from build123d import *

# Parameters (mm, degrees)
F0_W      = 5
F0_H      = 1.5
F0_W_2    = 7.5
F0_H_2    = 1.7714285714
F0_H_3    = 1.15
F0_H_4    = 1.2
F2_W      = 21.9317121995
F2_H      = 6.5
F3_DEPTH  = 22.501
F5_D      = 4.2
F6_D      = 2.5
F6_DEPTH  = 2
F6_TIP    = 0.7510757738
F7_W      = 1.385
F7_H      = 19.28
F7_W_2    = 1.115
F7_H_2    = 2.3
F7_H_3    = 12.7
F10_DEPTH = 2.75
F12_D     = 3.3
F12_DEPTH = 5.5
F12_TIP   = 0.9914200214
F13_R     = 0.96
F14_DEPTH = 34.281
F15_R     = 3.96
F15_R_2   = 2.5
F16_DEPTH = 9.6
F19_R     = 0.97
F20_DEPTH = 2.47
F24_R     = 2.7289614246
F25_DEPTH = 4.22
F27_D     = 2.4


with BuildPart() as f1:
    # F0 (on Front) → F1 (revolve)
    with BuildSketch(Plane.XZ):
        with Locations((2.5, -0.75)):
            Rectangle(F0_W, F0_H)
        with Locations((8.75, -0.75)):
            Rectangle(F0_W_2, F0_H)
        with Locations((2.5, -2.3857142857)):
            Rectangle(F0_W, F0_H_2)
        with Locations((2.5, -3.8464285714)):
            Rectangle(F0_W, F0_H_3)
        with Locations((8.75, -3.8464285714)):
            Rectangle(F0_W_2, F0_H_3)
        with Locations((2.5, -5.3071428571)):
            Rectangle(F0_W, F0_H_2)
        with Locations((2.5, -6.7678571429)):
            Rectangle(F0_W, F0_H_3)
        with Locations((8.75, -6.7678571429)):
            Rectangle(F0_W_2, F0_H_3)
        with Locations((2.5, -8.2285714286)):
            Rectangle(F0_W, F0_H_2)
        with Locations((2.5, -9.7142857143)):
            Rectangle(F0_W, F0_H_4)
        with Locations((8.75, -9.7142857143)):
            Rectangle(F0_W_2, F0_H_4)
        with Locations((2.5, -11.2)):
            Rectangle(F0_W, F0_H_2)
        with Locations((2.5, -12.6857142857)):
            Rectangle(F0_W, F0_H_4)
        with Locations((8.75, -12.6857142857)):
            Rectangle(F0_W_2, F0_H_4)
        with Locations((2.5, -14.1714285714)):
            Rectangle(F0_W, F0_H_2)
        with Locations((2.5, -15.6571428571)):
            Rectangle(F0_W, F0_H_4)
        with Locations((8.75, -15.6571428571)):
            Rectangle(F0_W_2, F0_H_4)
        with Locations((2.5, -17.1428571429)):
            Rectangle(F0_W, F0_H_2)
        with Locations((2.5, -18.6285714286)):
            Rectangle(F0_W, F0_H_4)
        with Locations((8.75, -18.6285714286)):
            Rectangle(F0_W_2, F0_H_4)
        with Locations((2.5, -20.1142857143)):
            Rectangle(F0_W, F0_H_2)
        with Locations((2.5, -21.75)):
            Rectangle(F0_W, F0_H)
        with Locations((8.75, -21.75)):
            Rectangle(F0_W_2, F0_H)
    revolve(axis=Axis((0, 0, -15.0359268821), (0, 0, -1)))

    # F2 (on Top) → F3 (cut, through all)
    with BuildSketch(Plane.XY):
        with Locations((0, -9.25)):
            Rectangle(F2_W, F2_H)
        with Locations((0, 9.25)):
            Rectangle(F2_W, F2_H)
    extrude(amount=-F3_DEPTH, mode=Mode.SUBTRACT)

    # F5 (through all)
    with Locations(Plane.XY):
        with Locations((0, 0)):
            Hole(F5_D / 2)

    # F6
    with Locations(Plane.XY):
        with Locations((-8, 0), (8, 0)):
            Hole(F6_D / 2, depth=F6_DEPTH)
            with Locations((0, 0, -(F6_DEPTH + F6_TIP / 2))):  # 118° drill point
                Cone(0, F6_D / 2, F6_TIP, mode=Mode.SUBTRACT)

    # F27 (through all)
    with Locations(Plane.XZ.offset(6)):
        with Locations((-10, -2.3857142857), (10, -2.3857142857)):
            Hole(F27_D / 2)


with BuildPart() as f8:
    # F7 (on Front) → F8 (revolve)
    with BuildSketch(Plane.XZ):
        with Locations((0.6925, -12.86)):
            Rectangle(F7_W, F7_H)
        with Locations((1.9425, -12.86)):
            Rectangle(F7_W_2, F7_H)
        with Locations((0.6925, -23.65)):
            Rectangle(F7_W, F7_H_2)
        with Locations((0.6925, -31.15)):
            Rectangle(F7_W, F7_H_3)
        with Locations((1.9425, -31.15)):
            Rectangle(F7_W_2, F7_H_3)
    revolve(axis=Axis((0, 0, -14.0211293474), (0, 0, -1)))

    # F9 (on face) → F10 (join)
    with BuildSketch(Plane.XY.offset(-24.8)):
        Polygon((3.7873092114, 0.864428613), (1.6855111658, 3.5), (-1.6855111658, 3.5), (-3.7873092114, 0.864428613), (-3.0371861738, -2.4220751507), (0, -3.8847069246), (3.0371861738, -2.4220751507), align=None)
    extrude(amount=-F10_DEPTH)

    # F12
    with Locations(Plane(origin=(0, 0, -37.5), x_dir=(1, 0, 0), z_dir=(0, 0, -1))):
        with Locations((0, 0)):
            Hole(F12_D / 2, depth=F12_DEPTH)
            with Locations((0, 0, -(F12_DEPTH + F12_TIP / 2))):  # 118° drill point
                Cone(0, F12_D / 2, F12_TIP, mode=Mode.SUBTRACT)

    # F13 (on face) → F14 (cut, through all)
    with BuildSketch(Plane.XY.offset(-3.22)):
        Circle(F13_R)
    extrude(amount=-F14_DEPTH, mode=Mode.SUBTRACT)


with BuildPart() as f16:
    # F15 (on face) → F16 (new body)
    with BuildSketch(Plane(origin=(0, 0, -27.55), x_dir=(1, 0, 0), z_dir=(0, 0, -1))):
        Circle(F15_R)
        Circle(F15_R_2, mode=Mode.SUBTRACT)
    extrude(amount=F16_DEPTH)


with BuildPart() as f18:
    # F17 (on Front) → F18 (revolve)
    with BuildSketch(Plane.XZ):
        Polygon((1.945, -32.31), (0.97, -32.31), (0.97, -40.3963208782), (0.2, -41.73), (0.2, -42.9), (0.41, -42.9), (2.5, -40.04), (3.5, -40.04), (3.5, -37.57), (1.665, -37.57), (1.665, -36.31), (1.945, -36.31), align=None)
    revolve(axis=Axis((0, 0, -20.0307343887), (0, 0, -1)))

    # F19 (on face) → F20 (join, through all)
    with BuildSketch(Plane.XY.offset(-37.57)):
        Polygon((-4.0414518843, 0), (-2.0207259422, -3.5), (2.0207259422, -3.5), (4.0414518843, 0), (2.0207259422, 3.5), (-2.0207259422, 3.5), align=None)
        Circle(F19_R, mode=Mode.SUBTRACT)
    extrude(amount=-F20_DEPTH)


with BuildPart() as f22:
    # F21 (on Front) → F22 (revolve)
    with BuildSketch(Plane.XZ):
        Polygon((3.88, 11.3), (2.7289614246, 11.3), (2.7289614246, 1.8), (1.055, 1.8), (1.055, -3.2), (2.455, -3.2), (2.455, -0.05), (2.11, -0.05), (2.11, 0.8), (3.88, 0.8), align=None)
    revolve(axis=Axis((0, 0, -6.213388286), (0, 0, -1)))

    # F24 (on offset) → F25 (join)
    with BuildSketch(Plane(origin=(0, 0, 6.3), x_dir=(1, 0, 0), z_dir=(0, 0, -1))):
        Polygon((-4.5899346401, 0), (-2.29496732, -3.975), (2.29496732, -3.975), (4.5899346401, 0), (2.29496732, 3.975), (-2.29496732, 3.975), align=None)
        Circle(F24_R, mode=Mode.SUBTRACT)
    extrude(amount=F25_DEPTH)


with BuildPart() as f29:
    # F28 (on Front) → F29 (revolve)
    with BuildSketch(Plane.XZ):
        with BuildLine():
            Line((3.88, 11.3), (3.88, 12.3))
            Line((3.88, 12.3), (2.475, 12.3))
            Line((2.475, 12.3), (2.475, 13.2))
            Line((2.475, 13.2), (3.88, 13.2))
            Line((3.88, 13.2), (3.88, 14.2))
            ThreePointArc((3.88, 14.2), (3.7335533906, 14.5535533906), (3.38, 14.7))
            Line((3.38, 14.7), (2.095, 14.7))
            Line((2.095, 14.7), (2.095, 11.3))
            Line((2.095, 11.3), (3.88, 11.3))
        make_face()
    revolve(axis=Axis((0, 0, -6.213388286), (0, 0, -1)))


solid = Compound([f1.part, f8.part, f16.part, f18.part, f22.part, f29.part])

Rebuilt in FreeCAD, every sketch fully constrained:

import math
import FreeCAD as App
import Part
import Sketcher
Q = App.Units.Quantity


def add_polygon(sketch, points):
    """Adds a closed chain of lines whose ends are joined by coincident constraints."""
    first, n = sketch.GeometryCount, len(points)
    for a, b in zip(points, points[1:] + points[:1]):
        sketch.addGeometry(Part.LineSegment(App.Vector(*a, 0), App.Vector(*b, 0)), False)
    for i in range(n):
        sketch.addConstraint(Sketcher.Constraint("Coincident", first + i, 2, first + (i + 1) % n, 1))

doc = App.newDocument("Part")
body = doc.addObject("PartDesign::Body", "Body")

# Sketch on XZ plane
sketch1 = doc.addObject("Sketcher::SketchObject", "Sketch")
body.addObject(sketch1)
sketch1.AttachmentSupport = (doc.XZ_Plane, [""])
sketch1.MapMode = "FlatFace"
add_polygon(sketch1, [(0, 0), (0, -22.5), (12.5, -22.5), (12.5, -21), (5, -21), (5, -19.2), (12.5, -19.2), (12.5, -18), (5, -18), (5, -16.3), (12.5, -16.3), (12.5, -15.1), (5, -15.1), (5, -13.3), (12.5, -13.3), (12.5, -12.1), (5, -12.1), (5, -10.3), (12.5, -10.3), (12.5, -9.1), (5, -9.1), (5, -7.3), (12.5, -7.3), (12.5, -6.2), (5, -6.2), (5, -4.4), (12.5, -4.4), (12.5, -3.3), (5, -3.3), (5, -1.5), (12.5, -1.5), (12.5, 0)])  # lines 0-31
sketch1.addConstraint([
    Sketcher.Constraint("Vertical", 0),
    Sketcher.Constraint("Horizontal", 1),
    Sketcher.Constraint("Vertical", 2),
    Sketcher.Constraint("Horizontal", 3),
    Sketcher.Constraint("Vertical", 4),
    Sketcher.Constraint("Horizontal", 5),
    Sketcher.Constraint("Vertical", 6),
    Sketcher.Constraint("Horizontal", 7),
    Sketcher.Constraint("Vertical", 8),
    Sketcher.Constraint("Horizontal", 9),
    Sketcher.Constraint("Vertical", 10),
    Sketcher.Constraint("Horizontal", 11),
    Sketcher.Constraint("Vertical", 12),
    Sketcher.Constraint("Horizontal", 13),
    Sketcher.Constraint("Vertical", 14),
    Sketcher.Constraint("Horizontal", 15),
    Sketcher.Constraint("Vertical", 16),
    Sketcher.Constraint("Horizontal", 17),
    Sketcher.Constraint("Vertical", 18),
    Sketcher.Constraint("Horizontal", 19),
    Sketcher.Constraint("Vertical", 20),
    Sketcher.Constraint("Horizontal", 21),
    Sketcher.Constraint("Vertical", 22),
    Sketcher.Constraint("Horizontal", 23),
    Sketcher.Constraint("Vertical", 24),
    Sketcher.Constraint("Horizontal", 25),
    Sketcher.Constraint("Vertical", 26),
    Sketcher.Constraint("Horizontal", 27),
    Sketcher.Constraint("Vertical", 28),
    Sketcher.Constraint("Horizontal", 29),
    Sketcher.Constraint("Vertical", 30),
    Sketcher.Constraint("Horizontal", 31),
    Sketcher.Constraint("Coincident", 31, 2, -1, 1),
    Sketcher.Constraint("Vertical", 2, 2, 5, 2),
    Sketcher.Constraint("Vertical", 4, 2, 7, 2),
    Sketcher.Constraint("Vertical", 6, 2, 9, 2),
    Sketcher.Constraint("Vertical", 8, 2, 11, 2),
    Sketcher.Constraint("Vertical", 10, 2, 13, 2),
    Sketcher.Constraint("Vertical", 12, 2, 15, 2),
    Sketcher.Constraint("Vertical", 14, 2, 17, 2),
    Sketcher.Constraint("Vertical", 16, 2, 19, 2),
    Sketcher.Constraint("Vertical", 18, 2, 21, 2),
    Sketcher.Constraint("Vertical", 20, 2, 23, 2),
    Sketcher.Constraint("Vertical", 22, 2, 25, 2),
    Sketcher.Constraint("Vertical", 24, 2, 27, 2),
    Sketcher.Constraint("Vertical", 26, 2, 29, 2),
    Sketcher.Constraint("Equal", 4, 8),
    Sketcher.Constraint("Equal", 6, 10),
    Sketcher.Constraint("Equal", 8, 12),
    Sketcher.Constraint("Equal", 10, 14),
    Sketcher.Constraint("Equal", 12, 16),
    Sketcher.Constraint("Equal", 14, 18),
    Sketcher.Constraint("Equal", 16, 20),
    Sketcher.Constraint("Equal", 20, 24),
    Sketcher.Constraint("Equal", 22, 26),
    Sketcher.Constraint("Equal", 24, 28),
    Sketcher.Constraint("Equal", 2, 30),
    Sketcher.Constraint("DistanceX", 1, 1, 1, 2, Q("12.5 mm")),
    Sketcher.Constraint("DistanceX", 3, 2, 3, 1, Q("7.5 mm")),
    Sketcher.Constraint("DistanceY", 0, 2, 0, 1, Q("22.5 mm")),
    Sketcher.Constraint("DistanceY", 2, 1, 2, 2, Q("1.5 mm")),
    Sketcher.Constraint("DistanceY", 6, 1, 6, 2, Q("1.2 mm")),
    Sketcher.Constraint("DistanceY", 22, 1, 22, 2, Q("1.15 mm")),
])
revolution = doc.addObject("PartDesign::Revolution", "Revolution")
body.addObject(revolution)
revolution.Profile = sketch1
revolution.ReferenceAxis = (sketch1, ["V_Axis"])
revolution.Angle = 360

# Sketch on XY plane
sketch2 = doc.addObject("Sketcher::SketchObject", "Sketch001")
body.addObject(sketch2)
sketch2.AttachmentSupport = (doc.XY_Plane, [""])
sketch2.MapMode = "FlatFace"
add_polygon(sketch2, [(-11, -6), (-11, -12), (11, -12), (11, -6)])  # lines 0-3
add_polygon(sketch2, [(-11, 12), (-11, 6), (11, 6), (11, 12)])  # lines 4-7
sketch2.addConstraint([
    Sketcher.Constraint("Vertical", 0),
    Sketcher.Constraint("Horizontal", 1),
    Sketcher.Constraint("Vertical", 2),
    Sketcher.Constraint("Horizontal", 3),
    Sketcher.Constraint("Vertical", 4),
    Sketcher.Constraint("Horizontal", 5),
    Sketcher.Constraint("Vertical", 6),
    Sketcher.Constraint("Horizontal", 7),
    Sketcher.Constraint("Symmetric", 2, 2, 4, 2, -1, 1),
    Sketcher.Constraint("Symmetric", 0, 2, 6, 2, -1, 1),
    Sketcher.Constraint("Vertical", 3, 2, 4, 2),
    Sketcher.Constraint("DistanceY", 0, 2, 0, 1, Q("6.5 mm")),
    Sketcher.Constraint("DistanceY", 2, 2, -1, 1, Q("6 mm")),
    Sketcher.Constraint("DistanceX", 1, 1, 1, 2, Q("21.931712 mm")),
])
pocket1 = doc.addObject("PartDesign::Pocket", "Pocket")
body.addObject(pocket1)
pocket1.Profile = sketch2
pocket1.Type = "ThroughAll"

# Sketch on XY plane
sketch3 = doc.addObject("Sketcher::SketchObject", "Sketch002")
body.addObject(sketch3)
sketch3.AttachmentSupport = (doc.XY_Plane, [""])
sketch3.MapMode = "FlatFace"
sketch3.addGeometry(Part.Circle(App.Vector(0, 0, 0), App.Vector(0, 0, 1), 2.1), False)
sketch3.addConstraint([
    Sketcher.Constraint("Coincident", 0, 3, -1, 1),
    Sketcher.Constraint("Diameter", 0, Q("4.2 mm")),
])
doc.recompute()
hole = doc.addObject("PartDesign::Hole", "Hole")
body.addObject(hole)
hole.Profile = sketch3
hole.ThreadType = "None"
hole.Diameter = 4.2
hole.DepthType = "ThroughAll"

# Sketch on XY plane
sketch4 = doc.addObject("Sketcher::SketchObject", "Sketch003")
body.addObject(sketch4)
sketch4.AttachmentSupport = (doc.XY_Plane, [""])
sketch4.MapMode = "FlatFace"
sketch4.addGeometry([
    Part.Circle(App.Vector(-8, 0, 0), App.Vector(0, 0, 1), 1.2),
    Part.Circle(App.Vector(8, 0, 0), App.Vector(0, 0, 1), 1.2),
], False)
sketch4.addConstraint([
    Sketcher.Constraint("Equal", 0, 1),
    Sketcher.Constraint("Symmetric", 0, 3, 1, 3, -1, 1),
    Sketcher.Constraint("PointOnObject", 0, 3, -1),
    Sketcher.Constraint("Diameter", 0, Q("2.5 mm")),
    Sketcher.Constraint("DistanceX", 0, 3, -1, 1, Q("8 mm")),
])
doc.recompute()
hole2 = doc.addObject("PartDesign::Hole", "Hole001")
body.addObject(hole2)
hole2.Profile = sketch4
hole2.ThreadType = "None"
hole2.Diameter = 2.5
hole2.DepthType = "Dimension"
hole2.Depth = 2
hole2.DrillPoint = "Angled"
hole2.DrillPointAngle = 118

# Sketch on XZ plane
sketch5 = doc.addObject("Sketcher::SketchObject", "Sketch004")
body.addObject(sketch5)
sketch5.AttachmentSupport = (doc.XZ_Plane, [""])
sketch5.MapMode = "FlatFace"
sketch5.AttachmentOffset = App.Placement(App.Vector(0, 0, 6), App.Rotation())
sketch5.addGeometry([
    Part.Circle(App.Vector(-10, -2.4, 0), App.Vector(0, 0, 1), 1.2),
    Part.Circle(App.Vector(10, -2.4, 0), App.Vector(0, 0, 1), 1.2),
], False)
sketch5.addConstraint([
    Sketcher.Constraint("Equal", 0, 1),
    Sketcher.Constraint("Symmetric", 0, 3, 1, 3, -2),
    Sketcher.Constraint("Diameter", 0, Q("2.4 mm")),
    Sketcher.Constraint("DistanceX", 0, 3, -1, 1, Q("10 mm")),
    Sketcher.Constraint("DistanceY", 0, 3, -1, 1, Q("2.385714 mm")),
])
doc.recompute()
hole3 = doc.addObject("PartDesign::Hole", "Hole002")
body.addObject(hole3)
hole3.Profile = sketch5
hole3.ThreadType = "None"
hole3.Diameter = 2.4
hole3.DepthType = "ThroughAll"
body2 = doc.addObject("PartDesign::Body", "Body001")

# Sketch on XZ plane
sketch6 = doc.addObject("Sketcher::SketchObject", "Sketch005")
body2.addObject(sketch6)
sketch6.AttachmentSupport = (doc.getObject("XZ_Plane001"), [""])
sketch6.MapMode = "FlatFace"
add_polygon(sketch6, [(0, -3.2), (0, -37.5), (2.5, -37.5), (2.5, -24.8), (1.4, -24.8), (1.4, -22.5), (2.5, -22.5), (2.5, -3.2)])  # lines 0-7
sketch6.addConstraint([
    Sketcher.Constraint("Vertical", 0),
    Sketcher.Constraint("Horizontal", 1),
    Sketcher.Constraint("Vertical", 2),
    Sketcher.Constraint("Horizontal", 3),
    Sketcher.Constraint("Vertical", 4),
    Sketcher.Constraint("Horizontal", 5),
    Sketcher.Constraint("Vertical", 6),
    Sketcher.Constraint("Horizontal", 7),
    Sketcher.Constraint("PointOnObject", 0, 2, -2),
    Sketcher.Constraint("Vertical", 2, 2, 5, 2),
    Sketcher.Constraint("DistanceX", 1, 1, 1, 2, Q("2.5 mm")),
    Sketcher.Constraint("DistanceY", 2, 1, 2, 2, Q("12.7 mm")),
    Sketcher.Constraint("DistanceY", 4, 1, 4, 2, Q("2.3 mm")),
    Sketcher.Constraint("DistanceY", 0, 2, 0, 1, Q("34.28 mm")),
    Sketcher.Constraint("DistanceY", 0, 2, -1, 1, Q("37.5 mm")),
    Sketcher.Constraint("DistanceX", 3, 2, 3, 1, Q("1.115 mm")),
])
revolution2 = doc.addObject("PartDesign::Revolution", "Revolution001")
body2.addObject(revolution2)
revolution2.Profile = sketch6
revolution2.ReferenceAxis = (sketch6, ["V_Axis"])
revolution2.Angle = 360

# Sketch on XY plane
sketch7 = doc.addObject("Sketcher::SketchObject", "Sketch006")
body2.addObject(sketch7)
sketch7.AttachmentSupport = (doc.getObject("XY_Plane001"), [""])
sketch7.MapMode = "FlatFace"
sketch7.AttachmentOffset = App.Placement(App.Vector(0, 0, -24.8), App.Rotation())
add_polygon(sketch7, [(3.8, 0.9), (1.7, 3.5), (-1.7, 3.5), (-3.8, 0.9), (-3, -2.4), (0, -3.9), (3, -2.4)])  # lines 0-6
sketch7.addConstraint([
    Sketcher.Constraint("Horizontal", 1),
    Sketcher.Constraint("Symmetric", 3, 2, 5, 2, -2),
    Sketcher.Constraint("Symmetric", 2, 2, 6, 2, -2),
    Sketcher.Constraint("PointOnObject", 4, 2, -2),
    Sketcher.Constraint("Equal", 0, 2),
    Sketcher.Constraint("Equal", 2, 3),
    Sketcher.Constraint("Equal", 3, 4),
    Sketcher.Constraint("DistanceY", -1, 1, 0, 2, Q("3.5 mm")),
    Sketcher.Constraint("DistanceX", 2, 2, 1, 2, Q("2.101798 mm")),
    Sketcher.Constraint("DistanceX", 1, 2, 1, 1, Q("3.371022 mm")),
    Sketcher.Constraint("DistanceY", -1, 1, 2, 2, Q("0.864429 mm")),
    Sketcher.Constraint("DistanceY", 4, 2, 3, 2, Q("1.462632 mm")),
])
pad1 = doc.addObject("PartDesign::Pad", "Pad")
body2.addObject(pad1)
pad1.Profile = sketch7
pad1.Length = 2.75
pad1.Reversed = True

# Sketch on XY plane
sketch8 = doc.addObject("Sketcher::SketchObject", "Sketch007")
body2.addObject(sketch8)
sketch8.AttachmentSupport = (doc.getObject("XY_Plane001"), [""])
sketch8.MapMode = "FlatFace"
sketch8.AttachmentOffset = App.Placement(App.Vector(0, 0, -37.5), App.Rotation())
sketch8.addGeometry(Part.Circle(App.Vector(0, 0, 0), App.Vector(0, 0, 1), 1.6), False)
sketch8.addConstraint([
    Sketcher.Constraint("Coincident", 0, 3, -1, 1),
    Sketcher.Constraint("Diameter", 0, Q("3.3 mm")),
])
doc.recompute()
hole4 = doc.addObject("PartDesign::Hole", "Hole003")
body2.addObject(hole4)
hole4.Profile = sketch8
hole4.ThreadType = "None"
hole4.Diameter = 3.3
hole4.DepthType = "Dimension"
hole4.Depth = 5.5
hole4.DrillPoint = "Angled"
hole4.DrillPointAngle = 118
hole4.Reversed = True

# Sketch on XY plane
sketch9 = doc.addObject("Sketcher::SketchObject", "Sketch008")
body2.addObject(sketch9)
sketch9.AttachmentSupport = (doc.getObject("XY_Plane001"), [""])
sketch9.MapMode = "FlatFace"
sketch9.AttachmentOffset = App.Placement(App.Vector(0, 0, -3.22), App.Rotation())
sketch9.addGeometry(Part.Circle(App.Vector(0, 0, 0), App.Vector(0, 0, 1), 1), False)
sketch9.addConstraint([
    Sketcher.Constraint("Coincident", 0, 3, -1, 1),
    Sketcher.Constraint("Diameter", 0, Q("1.92 mm")),
])
pocket2 = doc.addObject("PartDesign::Pocket", "Pocket001")
body2.addObject(pocket2)
pocket2.Profile = sketch9
pocket2.Type = "ThroughAll"
body3 = doc.addObject("PartDesign::Body", "Body002")

# Sketch on XY plane
sketch10 = doc.addObject("Sketcher::SketchObject", "Sketch009")
body3.addObject(sketch10)
sketch10.AttachmentSupport = (doc.getObject("XY_Plane002"), [""])
sketch10.MapMode = "FlatFace"
sketch10.AttachmentOffset = App.Placement(App.Vector(0, 0, -27.55), App.Rotation())
sketch10.addGeometry([
    Part.Circle(App.Vector(0, 0, 0), App.Vector(0, 0, 1), 4),
    Part.Circle(App.Vector(0, 0, 0), App.Vector(0, 0, 1), 2.5),
], False)
sketch10.addConstraint([
    Sketcher.Constraint("Coincident", 0, 3, -1, 1),
    Sketcher.Constraint("Coincident", 1, 3, -1, 1),
    Sketcher.Constraint("Diameter", 1, Q("5 mm")),
    Sketcher.Constraint("Diameter", 0, Q("7.92 mm")),
])
pad2 = doc.addObject("PartDesign::Pad", "Pad001")
body3.addObject(pad2)
pad2.Profile = sketch10
pad2.Length = 9.6
pad2.Reversed = True
body4 = doc.addObject("PartDesign::Body", "Body003")

# Sketch on XZ plane
sketch11 = doc.addObject("Sketcher::SketchObject", "Sketch010")
body4.addObject(sketch11)
sketch11.AttachmentSupport = (doc.getObject("XZ_Plane003"), [""])
sketch11.MapMode = "FlatFace"
add_polygon(sketch11, [(1.95, -32.31), (0.97, -32.31), (0.97, -40.4), (0.2, -41.73), (0.2, -42.9), (0.41, -42.9), (2.5, -40.04), (3.5, -40.04), (3.5, -37.57), (1.67, -37.57), (1.67, -36.31), (1.95, -36.31)])  # lines 0-11
sketch11.addConstraint([
    Sketcher.Constraint("Horizontal", 0),
    Sketcher.Constraint("Vertical", 1),
    Sketcher.Constraint("Vertical", 3),
    Sketcher.Constraint("Horizontal", 4),
    Sketcher.Constraint("Horizontal", 6),
    Sketcher.Constraint("Vertical", 7),
    Sketcher.Constraint("Horizontal", 8),
    Sketcher.Constraint("Vertical", 9),
    Sketcher.Constraint("Horizontal", 10),
    Sketcher.Constraint("Vertical", 11),
    Sketcher.Constraint("DistanceX", 6, 1, 6, 2, Q("1 mm")),
    Sketcher.Constraint("DistanceY", 11, 1, 11, 2, Q("4 mm")),
    Sketcher.Constraint("Angle", 2, Q("-120 deg")),
    Sketcher.Constraint("DistanceX", 4, 1, 4, 2, Q("0.21 mm")),
    Sketcher.Constraint("DistanceX", 10, 1, 10, 2, Q("0.28 mm")),
    Sketcher.Constraint("DistanceY", 3, 2, 3, 1, Q("1.17 mm")),
    Sketcher.Constraint("DistanceY", 7, 1, 7, 2, Q("2.47 mm")),
    Sketcher.Constraint("DistanceY", 9, 1, 9, 2, Q("1.26 mm")),
    Sketcher.Constraint("DistanceX", -1, 1, 2, 2, Q("0.2 mm")),
    Sketcher.Constraint("DistanceY", 3, 2, -1, 1, Q("42.9 mm")),
    Sketcher.Constraint("DistanceX", -1, 1, 5, 2, Q("2.5 mm")),
    Sketcher.Constraint("Distance", 2, Q("1.54 mm")),
    Sketcher.Constraint("DistanceX", 0, 2, 0, 1, Q("0.975 mm")),
    Sketcher.Constraint("DistanceY", 0, 2, -1, 1, Q("32.31 mm")),
])
revolution3 = doc.addObject("PartDesign::Revolution", "Revolution002")
body4.addObject(revolution3)
revolution3.Profile = sketch11
revolution3.ReferenceAxis = (sketch11, ["V_Axis"])
revolution3.Angle = 360

# Sketch on XY plane
sketch12 = doc.addObject("Sketcher::SketchObject", "Sketch011")
body4.addObject(sketch12)
sketch12.AttachmentSupport = (doc.getObject("XY_Plane003"), [""])
sketch12.MapMode = "FlatFace"
sketch12.AttachmentOffset = App.Placement(App.Vector(0, 0, -37.57), App.Rotation())
add_polygon(sketch12, [(-4, 0), (-2, -3.5), (2, -3.5), (4, 0), (2, 3.5), (-2, 3.5)])  # lines 0-5
sketch12.addGeometry(Part.Circle(App.Vector(0, 0, 0), App.Vector(0, 0, 1), 1), False)  # 6
sketch12.addConstraint([
    Sketcher.Constraint("Horizontal", 1),
    Sketcher.Constraint("Horizontal", 4),
    Sketcher.Constraint("Coincident", 6, 3, -1, 1),
    Sketcher.Constraint("Symmetric", 0, 2, 3, 2, -1, 1),
    Sketcher.Constraint("Symmetric", 2, 2, 5, 2, -1, 1),
    Sketcher.Constraint("PointOnObject", 2, 2, -1),
    Sketcher.Constraint("Parallel", 2, 5),
    Sketcher.Constraint("Vertical", 1, 2, 3, 2),
    Sketcher.Constraint("Diameter", 6, Q("1.94 mm")),
    Sketcher.Constraint("Angle", 0, Q("-60 deg")),
    Sketcher.Constraint("DistanceY", 1, 2, 3, 2, Q("7 mm")),
    Sketcher.Constraint("DistanceX", 1, 1, 1, 2, Q("4.041452 mm")),
])
pad3 = doc.addObject("PartDesign::Pad", "Pad002")
body4.addObject(pad3)
pad3.Profile = sketch12
pad3.Length = 2.47
pad3.Reversed = True
body5 = doc.addObject("PartDesign::Body", "Body004")

# Sketch on XZ plane
sketch13 = doc.addObject("Sketcher::SketchObject", "Sketch012")
body5.addObject(sketch13)
sketch13.AttachmentSupport = (doc.getObject("XZ_Plane004"), [""])
sketch13.MapMode = "FlatFace"
add_polygon(sketch13, [(3.88, 11.3), (2.73, 11.3), (2.73, 1.8), (1.05, 1.8), (1.05, -3.2), (2.46, -3.2), (2.46, -0.05), (2.11, -0.05), (2.11, 0.8), (3.88, 0.8)])  # lines 0-9
sketch13.addConstraint([
    Sketcher.Constraint("Horizontal", 0),
    Sketcher.Constraint("Vertical", 1),
    Sketcher.Constraint("Horizontal", 2),
    Sketcher.Constraint("Vertical", 3),
    Sketcher.Constraint("Horizontal", 4),
    Sketcher.Constraint("Vertical", 5),
    Sketcher.Constraint("Horizontal", 6),
    Sketcher.Constraint("Vertical", 7),
    Sketcher.Constraint("Horizontal", 8),
    Sketcher.Constraint("Vertical", 9),
    Sketcher.Constraint("DistanceY", 3, 2, 3, 1, Q("5 mm")),
    Sketcher.Constraint("DistanceX", 4, 1, 4, 2, Q("1.4 mm")),
    Sketcher.Constraint("DistanceY", 1, 2, 1, 1, Q("9.5 mm")),
    Sketcher.Constraint("DistanceY", 9, 1, 9, 2, Q("10.5 mm")),
    Sketcher.Constraint("DistanceX", 8, 1, 8, 2, Q("1.77 mm")),
    Sketcher.Constraint("DistanceY", 5, 1, 5, 2, Q("3.15 mm")),
    Sketcher.Constraint("DistanceY", -1, 1, 0, 2, Q("11.3 mm")),
    Sketcher.Constraint("DistanceX", 6, 2, 6, 1, Q("0.345 mm")),
    Sketcher.Constraint("DistanceX", -1, 1, 6, 2, Q("2.11 mm")),
    Sketcher.Constraint("DistanceX", 0, 2, 0, 1, Q("1.151039 mm")),
])
revolution4 = doc.addObject("PartDesign::Revolution", "Revolution003")
body5.addObject(revolution4)
revolution4.Profile = sketch13
revolution4.ReferenceAxis = (sketch13, ["V_Axis"])
revolution4.Angle = 360

# Sketch on XY plane
sketch14 = doc.addObject("Sketcher::SketchObject", "Sketch013")
body5.addObject(sketch14)
sketch14.AttachmentSupport = (doc.getObject("XY_Plane004"), [""])
sketch14.MapMode = "FlatFace"
sketch14.AttachmentOffset = App.Placement(App.Vector(0, 0, 6.3), App.Rotation())
add_polygon(sketch14, [(-4.6, 0), (-2.3, 4), (2.3, 4), (4.6, 0), (2.3, -4), (-2.3, -4)])  # lines 0-5
sketch14.addGeometry(Part.Circle(App.Vector(0, 0, 0), App.Vector(0, 0, 1), 2.7), False)  # 6
sketch14.addConstraint([
    Sketcher.Constraint("Horizontal", 1),
    Sketcher.Constraint("Horizontal", 4),
    Sketcher.Constraint("Coincident", 6, 3, -1, 1),
    Sketcher.Constraint("Symmetric", 0, 2, 3, 2, -1, 1),
    Sketcher.Constraint("Symmetric", 2, 2, 5, 2, -1, 1),
    Sketcher.Constraint("PointOnObject", 2, 2, -1),
    Sketcher.Constraint("Parallel", 2, 5),
    Sketcher.Constraint("Vertical", 1, 2, 3, 2),
    Sketcher.Constraint("Angle", 0, Q("60 deg")),
    Sketcher.Constraint("DistanceY", 3, 2, 1, 2, Q("7.95 mm")),
    Sketcher.Constraint("Diameter", 6, Q("5.457923 mm")),
    Sketcher.Constraint("DistanceX", 0, 2, 2, 2, Q("6.884902 mm")),
])
pad4 = doc.addObject("PartDesign::Pad", "Pad003")
body5.addObject(pad4)
pad4.Profile = sketch14
pad4.Length = 4.22
pad4.Reversed = True
body6 = doc.addObject("PartDesign::Body", "Body005")

# Sketch on XZ plane
sketch15 = doc.addObject("Sketcher::SketchObject", "Sketch014")
body6.addObject(sketch15)
sketch15.AttachmentSupport = (doc.getObject("XZ_Plane005"), [""])
sketch15.MapMode = "FlatFace"
sketch15.addGeometry([
    Part.LineSegment(App.Vector(3.9, 11.3, 0), App.Vector(3.9, 12.3, 0)),  # 0
    Part.LineSegment(App.Vector(3.9, 12.3, 0), App.Vector(2.5, 12.3, 0)),  # 1
    Part.LineSegment(App.Vector(2.5, 12.3, 0), App.Vector(2.5, 13.2, 0)),  # 2
    Part.LineSegment(App.Vector(2.5, 13.2, 0), App.Vector(3.9, 13.2, 0)),  # 3
    Part.LineSegment(App.Vector(3.9, 13.2, 0), App.Vector(3.9, 14.2, 0)),  # 4
    Part.ArcOfCircle(Part.Circle(App.Vector(3.4, 14.2, 0), App.Vector(0, 0, 1), 0.5), math.radians(0), math.radians(90)),  # 5
    Part.LineSegment(App.Vector(3.4, 14.7, 0), App.Vector(2.1, 14.7, 0)),  # 6
    Part.LineSegment(App.Vector(2.1, 14.7, 0), App.Vector(2.1, 11.3, 0)),  # 7
    Part.LineSegment(App.Vector(2.1, 11.3, 0), App.Vector(3.9, 11.3, 0)),  # 8
], False)
sketch15.addConstraint([
    Sketcher.Constraint("Coincident", 0, 2, 1, 1),
    Sketcher.Constraint("Coincident", 1, 2, 2, 1),
    Sketcher.Constraint("Coincident", 2, 2, 3, 1),
    Sketcher.Constraint("Coincident", 3, 2, 4, 1),
    Sketcher.Constraint("Tangent", 4, 2, 5, 1),
    Sketcher.Constraint("Tangent", 5, 2, 6, 1),
    Sketcher.Constraint("Coincident", 6, 2, 7, 1),
    Sketcher.Constraint("Coincident", 7, 2, 8, 1),
    Sketcher.Constraint("Coincident", 8, 2, 0, 1),
    Sketcher.Constraint("Vertical", 0),
    Sketcher.Constraint("Horizontal", 1),
    Sketcher.Constraint("Vertical", 2),
    Sketcher.Constraint("Horizontal", 3),
    Sketcher.Constraint("Vertical", 4),
    Sketcher.Constraint("Horizontal", 6),
    Sketcher.Constraint("Vertical", 7),
    Sketcher.Constraint("Horizontal", 8),
    Sketcher.Constraint("Vertical", 0, 2, 3, 2),
    Sketcher.Constraint("Equal", 0, 4),
    Sketcher.Constraint("Radius", 5, Q("0.5 mm")),
    Sketcher.Constraint("DistanceY", 0, 1, 0, 2, Q("1 mm")),
    Sketcher.Constraint("DistanceY", 2, 1, 2, 2, Q("0.9 mm")),
    Sketcher.Constraint("DistanceY", -1, 1, 5, 3, Q("14.2 mm")),
    Sketcher.Constraint("DistanceX", 1, 2, 1, 1, Q("1.405 mm")),
    Sketcher.Constraint("DistanceX", 6, 2, 6, 1, Q("1.285 mm")),
    Sketcher.Constraint("DistanceX", -1, 1, 5, 3, Q("3.38 mm")),
])
revolution5 = doc.addObject("PartDesign::Revolution", "Revolution004")
body6.addObject(revolution5)
revolution5.Profile = sketch15
revolution5.ReferenceAxis = (sketch15, ["V_Axis"])
revolution5.Angle = 360

doc.recompute()
